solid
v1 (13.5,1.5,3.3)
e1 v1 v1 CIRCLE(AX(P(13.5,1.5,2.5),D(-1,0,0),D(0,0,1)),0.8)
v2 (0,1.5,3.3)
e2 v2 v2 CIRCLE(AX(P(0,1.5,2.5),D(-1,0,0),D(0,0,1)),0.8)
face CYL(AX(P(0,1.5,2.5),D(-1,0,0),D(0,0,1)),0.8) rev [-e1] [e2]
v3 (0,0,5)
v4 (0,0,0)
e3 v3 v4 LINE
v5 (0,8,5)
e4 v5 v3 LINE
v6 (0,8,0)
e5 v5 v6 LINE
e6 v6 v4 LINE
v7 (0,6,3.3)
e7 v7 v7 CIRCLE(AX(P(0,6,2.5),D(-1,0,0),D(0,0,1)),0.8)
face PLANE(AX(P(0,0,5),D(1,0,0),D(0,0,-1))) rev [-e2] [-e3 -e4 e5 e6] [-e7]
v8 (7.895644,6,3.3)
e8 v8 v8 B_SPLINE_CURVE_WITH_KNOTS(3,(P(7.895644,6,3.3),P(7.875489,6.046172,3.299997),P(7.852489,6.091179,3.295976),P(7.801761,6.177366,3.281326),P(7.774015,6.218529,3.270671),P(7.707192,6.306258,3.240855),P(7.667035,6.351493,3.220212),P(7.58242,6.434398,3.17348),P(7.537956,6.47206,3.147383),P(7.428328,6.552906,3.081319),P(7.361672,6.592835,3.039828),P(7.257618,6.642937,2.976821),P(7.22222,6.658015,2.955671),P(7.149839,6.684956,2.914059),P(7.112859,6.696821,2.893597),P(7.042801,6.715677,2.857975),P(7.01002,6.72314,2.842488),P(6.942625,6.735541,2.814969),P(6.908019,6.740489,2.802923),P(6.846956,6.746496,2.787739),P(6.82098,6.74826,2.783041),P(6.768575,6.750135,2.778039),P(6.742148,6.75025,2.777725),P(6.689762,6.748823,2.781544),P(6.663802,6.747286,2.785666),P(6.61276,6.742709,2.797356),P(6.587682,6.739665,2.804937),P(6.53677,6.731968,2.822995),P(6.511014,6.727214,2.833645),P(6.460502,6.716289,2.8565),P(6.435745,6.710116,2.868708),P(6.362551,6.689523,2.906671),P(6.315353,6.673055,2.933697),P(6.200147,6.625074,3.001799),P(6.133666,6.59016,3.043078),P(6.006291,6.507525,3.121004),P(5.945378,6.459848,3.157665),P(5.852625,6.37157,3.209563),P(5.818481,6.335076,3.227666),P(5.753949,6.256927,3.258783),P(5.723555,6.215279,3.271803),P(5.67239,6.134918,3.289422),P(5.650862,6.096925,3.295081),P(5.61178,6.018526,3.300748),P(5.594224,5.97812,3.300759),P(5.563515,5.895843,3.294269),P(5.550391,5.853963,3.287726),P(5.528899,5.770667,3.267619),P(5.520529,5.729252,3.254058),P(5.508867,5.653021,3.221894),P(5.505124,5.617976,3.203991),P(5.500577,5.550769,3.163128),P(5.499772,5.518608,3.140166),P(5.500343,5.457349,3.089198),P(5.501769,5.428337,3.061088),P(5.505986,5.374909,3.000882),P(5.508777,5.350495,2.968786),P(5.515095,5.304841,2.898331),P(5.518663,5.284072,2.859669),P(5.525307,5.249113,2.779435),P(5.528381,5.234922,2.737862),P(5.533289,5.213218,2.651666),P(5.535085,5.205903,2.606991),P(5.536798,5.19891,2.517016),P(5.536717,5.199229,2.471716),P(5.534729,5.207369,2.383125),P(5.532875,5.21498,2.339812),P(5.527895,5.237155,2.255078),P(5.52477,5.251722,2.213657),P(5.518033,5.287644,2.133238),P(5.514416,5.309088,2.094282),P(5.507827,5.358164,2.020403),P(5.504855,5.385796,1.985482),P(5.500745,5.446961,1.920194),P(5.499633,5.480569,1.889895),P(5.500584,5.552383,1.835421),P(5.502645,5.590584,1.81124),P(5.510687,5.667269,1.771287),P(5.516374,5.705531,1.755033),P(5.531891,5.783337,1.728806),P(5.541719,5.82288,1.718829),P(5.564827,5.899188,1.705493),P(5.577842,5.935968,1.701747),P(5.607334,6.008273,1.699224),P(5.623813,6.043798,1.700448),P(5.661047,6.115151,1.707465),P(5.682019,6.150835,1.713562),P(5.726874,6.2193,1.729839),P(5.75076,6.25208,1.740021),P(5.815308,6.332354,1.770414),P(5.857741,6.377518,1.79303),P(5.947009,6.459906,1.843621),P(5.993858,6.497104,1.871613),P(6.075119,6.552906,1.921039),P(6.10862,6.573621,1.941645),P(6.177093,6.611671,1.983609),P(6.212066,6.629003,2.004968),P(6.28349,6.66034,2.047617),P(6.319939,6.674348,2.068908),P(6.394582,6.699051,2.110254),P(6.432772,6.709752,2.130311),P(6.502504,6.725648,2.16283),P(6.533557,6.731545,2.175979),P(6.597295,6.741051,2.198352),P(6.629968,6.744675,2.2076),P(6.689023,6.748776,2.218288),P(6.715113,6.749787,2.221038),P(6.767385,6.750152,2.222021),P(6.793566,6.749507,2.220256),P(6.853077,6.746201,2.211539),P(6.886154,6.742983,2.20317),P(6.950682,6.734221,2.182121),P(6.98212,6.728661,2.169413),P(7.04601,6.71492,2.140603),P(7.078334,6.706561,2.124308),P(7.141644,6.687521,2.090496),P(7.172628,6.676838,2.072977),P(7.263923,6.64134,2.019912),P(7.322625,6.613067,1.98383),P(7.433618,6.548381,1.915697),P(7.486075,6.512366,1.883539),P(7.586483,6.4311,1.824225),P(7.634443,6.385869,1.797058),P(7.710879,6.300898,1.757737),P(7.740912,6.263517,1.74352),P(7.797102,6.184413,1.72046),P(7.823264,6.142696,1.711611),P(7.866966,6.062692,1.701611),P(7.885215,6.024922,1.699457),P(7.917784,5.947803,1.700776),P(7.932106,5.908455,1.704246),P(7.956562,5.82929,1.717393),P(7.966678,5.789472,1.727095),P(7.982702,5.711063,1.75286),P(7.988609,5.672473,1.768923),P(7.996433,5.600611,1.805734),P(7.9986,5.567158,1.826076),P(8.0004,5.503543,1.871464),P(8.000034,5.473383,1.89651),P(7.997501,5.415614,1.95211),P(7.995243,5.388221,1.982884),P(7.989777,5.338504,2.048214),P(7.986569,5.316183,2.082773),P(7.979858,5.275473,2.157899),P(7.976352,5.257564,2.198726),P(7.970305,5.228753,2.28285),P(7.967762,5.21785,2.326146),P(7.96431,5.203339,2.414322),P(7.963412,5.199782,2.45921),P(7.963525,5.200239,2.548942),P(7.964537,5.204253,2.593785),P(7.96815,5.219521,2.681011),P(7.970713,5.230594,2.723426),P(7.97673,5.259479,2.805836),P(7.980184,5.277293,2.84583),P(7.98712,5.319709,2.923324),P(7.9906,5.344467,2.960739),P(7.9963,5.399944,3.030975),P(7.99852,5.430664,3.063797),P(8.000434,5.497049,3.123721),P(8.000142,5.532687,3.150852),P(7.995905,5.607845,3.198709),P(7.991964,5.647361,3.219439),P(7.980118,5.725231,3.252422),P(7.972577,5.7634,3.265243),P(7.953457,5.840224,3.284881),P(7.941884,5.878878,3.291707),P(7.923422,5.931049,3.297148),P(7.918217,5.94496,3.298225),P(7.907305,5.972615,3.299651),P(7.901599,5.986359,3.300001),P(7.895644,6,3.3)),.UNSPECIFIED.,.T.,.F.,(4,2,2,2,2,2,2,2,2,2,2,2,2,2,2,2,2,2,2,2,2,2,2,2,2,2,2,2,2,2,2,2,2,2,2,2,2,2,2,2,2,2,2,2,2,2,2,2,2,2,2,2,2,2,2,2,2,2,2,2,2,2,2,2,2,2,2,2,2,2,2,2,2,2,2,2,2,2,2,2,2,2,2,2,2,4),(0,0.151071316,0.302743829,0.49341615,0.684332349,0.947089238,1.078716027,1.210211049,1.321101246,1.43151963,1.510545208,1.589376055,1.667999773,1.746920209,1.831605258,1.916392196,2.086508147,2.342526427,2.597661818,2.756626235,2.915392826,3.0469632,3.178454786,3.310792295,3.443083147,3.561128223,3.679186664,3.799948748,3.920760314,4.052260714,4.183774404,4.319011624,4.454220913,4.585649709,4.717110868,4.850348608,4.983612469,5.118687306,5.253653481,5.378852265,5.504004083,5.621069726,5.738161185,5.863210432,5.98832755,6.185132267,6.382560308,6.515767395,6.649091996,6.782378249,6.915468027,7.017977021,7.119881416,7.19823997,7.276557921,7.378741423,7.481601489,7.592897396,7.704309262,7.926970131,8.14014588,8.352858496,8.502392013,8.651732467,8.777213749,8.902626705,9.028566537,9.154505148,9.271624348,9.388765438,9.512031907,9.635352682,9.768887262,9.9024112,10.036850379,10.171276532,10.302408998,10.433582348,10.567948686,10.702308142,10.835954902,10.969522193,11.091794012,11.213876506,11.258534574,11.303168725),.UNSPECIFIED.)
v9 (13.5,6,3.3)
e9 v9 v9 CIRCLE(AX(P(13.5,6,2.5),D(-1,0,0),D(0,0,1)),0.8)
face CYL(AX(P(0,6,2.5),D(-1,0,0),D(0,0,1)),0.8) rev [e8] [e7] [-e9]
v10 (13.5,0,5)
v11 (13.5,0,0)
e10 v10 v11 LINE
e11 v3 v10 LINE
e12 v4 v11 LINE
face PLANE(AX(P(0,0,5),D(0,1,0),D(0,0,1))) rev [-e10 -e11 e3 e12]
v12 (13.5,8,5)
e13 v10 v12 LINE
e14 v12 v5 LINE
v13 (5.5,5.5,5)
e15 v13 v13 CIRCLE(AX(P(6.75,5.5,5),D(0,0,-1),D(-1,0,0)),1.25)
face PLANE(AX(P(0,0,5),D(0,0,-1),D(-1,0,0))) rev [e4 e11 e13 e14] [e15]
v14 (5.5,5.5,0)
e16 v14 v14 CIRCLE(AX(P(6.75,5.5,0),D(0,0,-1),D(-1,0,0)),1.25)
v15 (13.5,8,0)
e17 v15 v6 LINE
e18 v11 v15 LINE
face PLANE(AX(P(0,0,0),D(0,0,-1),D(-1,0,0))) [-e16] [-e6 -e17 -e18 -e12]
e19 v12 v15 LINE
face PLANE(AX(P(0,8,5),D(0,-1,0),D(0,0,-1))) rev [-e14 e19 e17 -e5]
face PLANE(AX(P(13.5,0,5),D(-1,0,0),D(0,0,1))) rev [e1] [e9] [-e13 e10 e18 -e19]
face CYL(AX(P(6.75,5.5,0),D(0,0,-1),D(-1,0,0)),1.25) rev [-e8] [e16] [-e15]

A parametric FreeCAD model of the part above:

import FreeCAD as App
import Part
import Sketcher

V = App.Vector

doc = App.newDocument("Part")
body = doc.addObject("PartDesign::Body", "Body")

# Sketch on XY plane
sketch1 = doc.addObject("Sketcher::SketchObject", "Sketch")
body.addObject(sketch1)
sketch1.AttachmentSupport = (doc.XY_Plane, [""])
sketch1.MapMode = "FlatFace"
sketch1.addGeometry([
    Part.LineSegment(V(0, 8, 0), V(0, 0, 0)),
    Part.LineSegment(V(0, 0, 0), V(14, 0, 0)),
    Part.LineSegment(V(14, 0, 0), V(14, 8, 0)),
    Part.LineSegment(V(14, 8, 0), V(0, 8, 0)),
], False)
sketch1.addConstraint([
    Sketcher.Constraint("Coincident", 0, 2, 1, 1),
    Sketcher.Constraint("Coincident", 1, 2, 2, 1),
    Sketcher.Constraint("Coincident", 2, 2, 3, 1),
    Sketcher.Constraint("Coincident", 3, 2, 0, 1),
    Sketcher.Constraint("Vertical", 0),
    Sketcher.Constraint("Horizontal", 1),
    Sketcher.Constraint("Vertical", 2),
    Sketcher.Constraint("Horizontal", 3),
    Sketcher.Constraint("Coincident", 0, 2, -1, 1),
    Sketcher.Constraint("DistanceY", 0, 2, 0, 1, 8.0),
    Sketcher.Constraint("DistanceX", 1, 1, 1, 2, 13.5),
])
pad1 = doc.addObject("PartDesign::Pad", "Pad")
body.addObject(pad1)
pad1.Profile = sketch1
pad1.Length = 5

# Sketch on YZ plane
sketch2 = doc.addObject("Sketcher::SketchObject", "Sketch001")
body.addObject(sketch2)
sketch2.AttachmentSupport = (doc.YZ_Plane, [""])
sketch2.MapMode = "FlatFace"
sketch2.addGeometry([
    Part.Circle(V(6, 2.5, 0), V(0, 0, 1), 0.8),
    Part.Circle(V(1.5, 2.5, 0), V(0, 0, 1), 0.8),
], False)
sketch2.addConstraint([
    Sketcher.Constraint("Equal", 0, 1),
    Sketcher.Constraint("Horizontal", 0, 3, 1, 3),
    Sketcher.Constraint("Diameter", 0, 1.6),
    Sketcher.Constraint("DistanceX", -1, 1, 0, 3, 6.0),
    Sketcher.Constraint("DistanceY", -1, 1, 0, 3, 2.5),
    Sketcher.Constraint("DistanceX", -1, 1, 1, 3, 1.5),
])
doc.recompute()
hole = doc.addObject("PartDesign::Hole", "Hole")
body.addObject(hole)
hole.Profile = sketch2
hole.ThreadType = "None"
hole.Diameter = 1.6
hole.DepthType = "ThroughAll"
hole.Reversed = True

# Sketch on XY plane
sketch3 = doc.addObject("Sketcher::SketchObject", "Sketch002")
body.addObject(sketch3)
sketch3.AttachmentSupport = (doc.XY_Plane, [""])
sketch3.MapMode = "FlatFace"
sketch3.addGeometry(Part.Circle(V(6.8, 5.5, 0), V(0, 0, 1), 1.2), False)
sketch3.addConstraint([
    Sketcher.Constraint("Diameter", 0, 2.5),
    Sketcher.Constraint("DistanceY", -1, 1, 0, 3, 5.5),
    Sketcher.Constraint("DistanceX", -1, 1, 0, 3, 6.75),
])
doc.recompute()
hole2 = doc.addObject("PartDesign::Hole", "Hole001")
body.addObject(hole2)
hole2.Profile = sketch3
hole2.ThreadType = "None"
hole2.Diameter = 2.5
hole2.DepthType = "Dimension"
hole2.Depth = 5
hole2.DrillPoint = "Angled"
hole2.DrillPointAngle = 118
hole2.Reversed = True

doc.recompute()
